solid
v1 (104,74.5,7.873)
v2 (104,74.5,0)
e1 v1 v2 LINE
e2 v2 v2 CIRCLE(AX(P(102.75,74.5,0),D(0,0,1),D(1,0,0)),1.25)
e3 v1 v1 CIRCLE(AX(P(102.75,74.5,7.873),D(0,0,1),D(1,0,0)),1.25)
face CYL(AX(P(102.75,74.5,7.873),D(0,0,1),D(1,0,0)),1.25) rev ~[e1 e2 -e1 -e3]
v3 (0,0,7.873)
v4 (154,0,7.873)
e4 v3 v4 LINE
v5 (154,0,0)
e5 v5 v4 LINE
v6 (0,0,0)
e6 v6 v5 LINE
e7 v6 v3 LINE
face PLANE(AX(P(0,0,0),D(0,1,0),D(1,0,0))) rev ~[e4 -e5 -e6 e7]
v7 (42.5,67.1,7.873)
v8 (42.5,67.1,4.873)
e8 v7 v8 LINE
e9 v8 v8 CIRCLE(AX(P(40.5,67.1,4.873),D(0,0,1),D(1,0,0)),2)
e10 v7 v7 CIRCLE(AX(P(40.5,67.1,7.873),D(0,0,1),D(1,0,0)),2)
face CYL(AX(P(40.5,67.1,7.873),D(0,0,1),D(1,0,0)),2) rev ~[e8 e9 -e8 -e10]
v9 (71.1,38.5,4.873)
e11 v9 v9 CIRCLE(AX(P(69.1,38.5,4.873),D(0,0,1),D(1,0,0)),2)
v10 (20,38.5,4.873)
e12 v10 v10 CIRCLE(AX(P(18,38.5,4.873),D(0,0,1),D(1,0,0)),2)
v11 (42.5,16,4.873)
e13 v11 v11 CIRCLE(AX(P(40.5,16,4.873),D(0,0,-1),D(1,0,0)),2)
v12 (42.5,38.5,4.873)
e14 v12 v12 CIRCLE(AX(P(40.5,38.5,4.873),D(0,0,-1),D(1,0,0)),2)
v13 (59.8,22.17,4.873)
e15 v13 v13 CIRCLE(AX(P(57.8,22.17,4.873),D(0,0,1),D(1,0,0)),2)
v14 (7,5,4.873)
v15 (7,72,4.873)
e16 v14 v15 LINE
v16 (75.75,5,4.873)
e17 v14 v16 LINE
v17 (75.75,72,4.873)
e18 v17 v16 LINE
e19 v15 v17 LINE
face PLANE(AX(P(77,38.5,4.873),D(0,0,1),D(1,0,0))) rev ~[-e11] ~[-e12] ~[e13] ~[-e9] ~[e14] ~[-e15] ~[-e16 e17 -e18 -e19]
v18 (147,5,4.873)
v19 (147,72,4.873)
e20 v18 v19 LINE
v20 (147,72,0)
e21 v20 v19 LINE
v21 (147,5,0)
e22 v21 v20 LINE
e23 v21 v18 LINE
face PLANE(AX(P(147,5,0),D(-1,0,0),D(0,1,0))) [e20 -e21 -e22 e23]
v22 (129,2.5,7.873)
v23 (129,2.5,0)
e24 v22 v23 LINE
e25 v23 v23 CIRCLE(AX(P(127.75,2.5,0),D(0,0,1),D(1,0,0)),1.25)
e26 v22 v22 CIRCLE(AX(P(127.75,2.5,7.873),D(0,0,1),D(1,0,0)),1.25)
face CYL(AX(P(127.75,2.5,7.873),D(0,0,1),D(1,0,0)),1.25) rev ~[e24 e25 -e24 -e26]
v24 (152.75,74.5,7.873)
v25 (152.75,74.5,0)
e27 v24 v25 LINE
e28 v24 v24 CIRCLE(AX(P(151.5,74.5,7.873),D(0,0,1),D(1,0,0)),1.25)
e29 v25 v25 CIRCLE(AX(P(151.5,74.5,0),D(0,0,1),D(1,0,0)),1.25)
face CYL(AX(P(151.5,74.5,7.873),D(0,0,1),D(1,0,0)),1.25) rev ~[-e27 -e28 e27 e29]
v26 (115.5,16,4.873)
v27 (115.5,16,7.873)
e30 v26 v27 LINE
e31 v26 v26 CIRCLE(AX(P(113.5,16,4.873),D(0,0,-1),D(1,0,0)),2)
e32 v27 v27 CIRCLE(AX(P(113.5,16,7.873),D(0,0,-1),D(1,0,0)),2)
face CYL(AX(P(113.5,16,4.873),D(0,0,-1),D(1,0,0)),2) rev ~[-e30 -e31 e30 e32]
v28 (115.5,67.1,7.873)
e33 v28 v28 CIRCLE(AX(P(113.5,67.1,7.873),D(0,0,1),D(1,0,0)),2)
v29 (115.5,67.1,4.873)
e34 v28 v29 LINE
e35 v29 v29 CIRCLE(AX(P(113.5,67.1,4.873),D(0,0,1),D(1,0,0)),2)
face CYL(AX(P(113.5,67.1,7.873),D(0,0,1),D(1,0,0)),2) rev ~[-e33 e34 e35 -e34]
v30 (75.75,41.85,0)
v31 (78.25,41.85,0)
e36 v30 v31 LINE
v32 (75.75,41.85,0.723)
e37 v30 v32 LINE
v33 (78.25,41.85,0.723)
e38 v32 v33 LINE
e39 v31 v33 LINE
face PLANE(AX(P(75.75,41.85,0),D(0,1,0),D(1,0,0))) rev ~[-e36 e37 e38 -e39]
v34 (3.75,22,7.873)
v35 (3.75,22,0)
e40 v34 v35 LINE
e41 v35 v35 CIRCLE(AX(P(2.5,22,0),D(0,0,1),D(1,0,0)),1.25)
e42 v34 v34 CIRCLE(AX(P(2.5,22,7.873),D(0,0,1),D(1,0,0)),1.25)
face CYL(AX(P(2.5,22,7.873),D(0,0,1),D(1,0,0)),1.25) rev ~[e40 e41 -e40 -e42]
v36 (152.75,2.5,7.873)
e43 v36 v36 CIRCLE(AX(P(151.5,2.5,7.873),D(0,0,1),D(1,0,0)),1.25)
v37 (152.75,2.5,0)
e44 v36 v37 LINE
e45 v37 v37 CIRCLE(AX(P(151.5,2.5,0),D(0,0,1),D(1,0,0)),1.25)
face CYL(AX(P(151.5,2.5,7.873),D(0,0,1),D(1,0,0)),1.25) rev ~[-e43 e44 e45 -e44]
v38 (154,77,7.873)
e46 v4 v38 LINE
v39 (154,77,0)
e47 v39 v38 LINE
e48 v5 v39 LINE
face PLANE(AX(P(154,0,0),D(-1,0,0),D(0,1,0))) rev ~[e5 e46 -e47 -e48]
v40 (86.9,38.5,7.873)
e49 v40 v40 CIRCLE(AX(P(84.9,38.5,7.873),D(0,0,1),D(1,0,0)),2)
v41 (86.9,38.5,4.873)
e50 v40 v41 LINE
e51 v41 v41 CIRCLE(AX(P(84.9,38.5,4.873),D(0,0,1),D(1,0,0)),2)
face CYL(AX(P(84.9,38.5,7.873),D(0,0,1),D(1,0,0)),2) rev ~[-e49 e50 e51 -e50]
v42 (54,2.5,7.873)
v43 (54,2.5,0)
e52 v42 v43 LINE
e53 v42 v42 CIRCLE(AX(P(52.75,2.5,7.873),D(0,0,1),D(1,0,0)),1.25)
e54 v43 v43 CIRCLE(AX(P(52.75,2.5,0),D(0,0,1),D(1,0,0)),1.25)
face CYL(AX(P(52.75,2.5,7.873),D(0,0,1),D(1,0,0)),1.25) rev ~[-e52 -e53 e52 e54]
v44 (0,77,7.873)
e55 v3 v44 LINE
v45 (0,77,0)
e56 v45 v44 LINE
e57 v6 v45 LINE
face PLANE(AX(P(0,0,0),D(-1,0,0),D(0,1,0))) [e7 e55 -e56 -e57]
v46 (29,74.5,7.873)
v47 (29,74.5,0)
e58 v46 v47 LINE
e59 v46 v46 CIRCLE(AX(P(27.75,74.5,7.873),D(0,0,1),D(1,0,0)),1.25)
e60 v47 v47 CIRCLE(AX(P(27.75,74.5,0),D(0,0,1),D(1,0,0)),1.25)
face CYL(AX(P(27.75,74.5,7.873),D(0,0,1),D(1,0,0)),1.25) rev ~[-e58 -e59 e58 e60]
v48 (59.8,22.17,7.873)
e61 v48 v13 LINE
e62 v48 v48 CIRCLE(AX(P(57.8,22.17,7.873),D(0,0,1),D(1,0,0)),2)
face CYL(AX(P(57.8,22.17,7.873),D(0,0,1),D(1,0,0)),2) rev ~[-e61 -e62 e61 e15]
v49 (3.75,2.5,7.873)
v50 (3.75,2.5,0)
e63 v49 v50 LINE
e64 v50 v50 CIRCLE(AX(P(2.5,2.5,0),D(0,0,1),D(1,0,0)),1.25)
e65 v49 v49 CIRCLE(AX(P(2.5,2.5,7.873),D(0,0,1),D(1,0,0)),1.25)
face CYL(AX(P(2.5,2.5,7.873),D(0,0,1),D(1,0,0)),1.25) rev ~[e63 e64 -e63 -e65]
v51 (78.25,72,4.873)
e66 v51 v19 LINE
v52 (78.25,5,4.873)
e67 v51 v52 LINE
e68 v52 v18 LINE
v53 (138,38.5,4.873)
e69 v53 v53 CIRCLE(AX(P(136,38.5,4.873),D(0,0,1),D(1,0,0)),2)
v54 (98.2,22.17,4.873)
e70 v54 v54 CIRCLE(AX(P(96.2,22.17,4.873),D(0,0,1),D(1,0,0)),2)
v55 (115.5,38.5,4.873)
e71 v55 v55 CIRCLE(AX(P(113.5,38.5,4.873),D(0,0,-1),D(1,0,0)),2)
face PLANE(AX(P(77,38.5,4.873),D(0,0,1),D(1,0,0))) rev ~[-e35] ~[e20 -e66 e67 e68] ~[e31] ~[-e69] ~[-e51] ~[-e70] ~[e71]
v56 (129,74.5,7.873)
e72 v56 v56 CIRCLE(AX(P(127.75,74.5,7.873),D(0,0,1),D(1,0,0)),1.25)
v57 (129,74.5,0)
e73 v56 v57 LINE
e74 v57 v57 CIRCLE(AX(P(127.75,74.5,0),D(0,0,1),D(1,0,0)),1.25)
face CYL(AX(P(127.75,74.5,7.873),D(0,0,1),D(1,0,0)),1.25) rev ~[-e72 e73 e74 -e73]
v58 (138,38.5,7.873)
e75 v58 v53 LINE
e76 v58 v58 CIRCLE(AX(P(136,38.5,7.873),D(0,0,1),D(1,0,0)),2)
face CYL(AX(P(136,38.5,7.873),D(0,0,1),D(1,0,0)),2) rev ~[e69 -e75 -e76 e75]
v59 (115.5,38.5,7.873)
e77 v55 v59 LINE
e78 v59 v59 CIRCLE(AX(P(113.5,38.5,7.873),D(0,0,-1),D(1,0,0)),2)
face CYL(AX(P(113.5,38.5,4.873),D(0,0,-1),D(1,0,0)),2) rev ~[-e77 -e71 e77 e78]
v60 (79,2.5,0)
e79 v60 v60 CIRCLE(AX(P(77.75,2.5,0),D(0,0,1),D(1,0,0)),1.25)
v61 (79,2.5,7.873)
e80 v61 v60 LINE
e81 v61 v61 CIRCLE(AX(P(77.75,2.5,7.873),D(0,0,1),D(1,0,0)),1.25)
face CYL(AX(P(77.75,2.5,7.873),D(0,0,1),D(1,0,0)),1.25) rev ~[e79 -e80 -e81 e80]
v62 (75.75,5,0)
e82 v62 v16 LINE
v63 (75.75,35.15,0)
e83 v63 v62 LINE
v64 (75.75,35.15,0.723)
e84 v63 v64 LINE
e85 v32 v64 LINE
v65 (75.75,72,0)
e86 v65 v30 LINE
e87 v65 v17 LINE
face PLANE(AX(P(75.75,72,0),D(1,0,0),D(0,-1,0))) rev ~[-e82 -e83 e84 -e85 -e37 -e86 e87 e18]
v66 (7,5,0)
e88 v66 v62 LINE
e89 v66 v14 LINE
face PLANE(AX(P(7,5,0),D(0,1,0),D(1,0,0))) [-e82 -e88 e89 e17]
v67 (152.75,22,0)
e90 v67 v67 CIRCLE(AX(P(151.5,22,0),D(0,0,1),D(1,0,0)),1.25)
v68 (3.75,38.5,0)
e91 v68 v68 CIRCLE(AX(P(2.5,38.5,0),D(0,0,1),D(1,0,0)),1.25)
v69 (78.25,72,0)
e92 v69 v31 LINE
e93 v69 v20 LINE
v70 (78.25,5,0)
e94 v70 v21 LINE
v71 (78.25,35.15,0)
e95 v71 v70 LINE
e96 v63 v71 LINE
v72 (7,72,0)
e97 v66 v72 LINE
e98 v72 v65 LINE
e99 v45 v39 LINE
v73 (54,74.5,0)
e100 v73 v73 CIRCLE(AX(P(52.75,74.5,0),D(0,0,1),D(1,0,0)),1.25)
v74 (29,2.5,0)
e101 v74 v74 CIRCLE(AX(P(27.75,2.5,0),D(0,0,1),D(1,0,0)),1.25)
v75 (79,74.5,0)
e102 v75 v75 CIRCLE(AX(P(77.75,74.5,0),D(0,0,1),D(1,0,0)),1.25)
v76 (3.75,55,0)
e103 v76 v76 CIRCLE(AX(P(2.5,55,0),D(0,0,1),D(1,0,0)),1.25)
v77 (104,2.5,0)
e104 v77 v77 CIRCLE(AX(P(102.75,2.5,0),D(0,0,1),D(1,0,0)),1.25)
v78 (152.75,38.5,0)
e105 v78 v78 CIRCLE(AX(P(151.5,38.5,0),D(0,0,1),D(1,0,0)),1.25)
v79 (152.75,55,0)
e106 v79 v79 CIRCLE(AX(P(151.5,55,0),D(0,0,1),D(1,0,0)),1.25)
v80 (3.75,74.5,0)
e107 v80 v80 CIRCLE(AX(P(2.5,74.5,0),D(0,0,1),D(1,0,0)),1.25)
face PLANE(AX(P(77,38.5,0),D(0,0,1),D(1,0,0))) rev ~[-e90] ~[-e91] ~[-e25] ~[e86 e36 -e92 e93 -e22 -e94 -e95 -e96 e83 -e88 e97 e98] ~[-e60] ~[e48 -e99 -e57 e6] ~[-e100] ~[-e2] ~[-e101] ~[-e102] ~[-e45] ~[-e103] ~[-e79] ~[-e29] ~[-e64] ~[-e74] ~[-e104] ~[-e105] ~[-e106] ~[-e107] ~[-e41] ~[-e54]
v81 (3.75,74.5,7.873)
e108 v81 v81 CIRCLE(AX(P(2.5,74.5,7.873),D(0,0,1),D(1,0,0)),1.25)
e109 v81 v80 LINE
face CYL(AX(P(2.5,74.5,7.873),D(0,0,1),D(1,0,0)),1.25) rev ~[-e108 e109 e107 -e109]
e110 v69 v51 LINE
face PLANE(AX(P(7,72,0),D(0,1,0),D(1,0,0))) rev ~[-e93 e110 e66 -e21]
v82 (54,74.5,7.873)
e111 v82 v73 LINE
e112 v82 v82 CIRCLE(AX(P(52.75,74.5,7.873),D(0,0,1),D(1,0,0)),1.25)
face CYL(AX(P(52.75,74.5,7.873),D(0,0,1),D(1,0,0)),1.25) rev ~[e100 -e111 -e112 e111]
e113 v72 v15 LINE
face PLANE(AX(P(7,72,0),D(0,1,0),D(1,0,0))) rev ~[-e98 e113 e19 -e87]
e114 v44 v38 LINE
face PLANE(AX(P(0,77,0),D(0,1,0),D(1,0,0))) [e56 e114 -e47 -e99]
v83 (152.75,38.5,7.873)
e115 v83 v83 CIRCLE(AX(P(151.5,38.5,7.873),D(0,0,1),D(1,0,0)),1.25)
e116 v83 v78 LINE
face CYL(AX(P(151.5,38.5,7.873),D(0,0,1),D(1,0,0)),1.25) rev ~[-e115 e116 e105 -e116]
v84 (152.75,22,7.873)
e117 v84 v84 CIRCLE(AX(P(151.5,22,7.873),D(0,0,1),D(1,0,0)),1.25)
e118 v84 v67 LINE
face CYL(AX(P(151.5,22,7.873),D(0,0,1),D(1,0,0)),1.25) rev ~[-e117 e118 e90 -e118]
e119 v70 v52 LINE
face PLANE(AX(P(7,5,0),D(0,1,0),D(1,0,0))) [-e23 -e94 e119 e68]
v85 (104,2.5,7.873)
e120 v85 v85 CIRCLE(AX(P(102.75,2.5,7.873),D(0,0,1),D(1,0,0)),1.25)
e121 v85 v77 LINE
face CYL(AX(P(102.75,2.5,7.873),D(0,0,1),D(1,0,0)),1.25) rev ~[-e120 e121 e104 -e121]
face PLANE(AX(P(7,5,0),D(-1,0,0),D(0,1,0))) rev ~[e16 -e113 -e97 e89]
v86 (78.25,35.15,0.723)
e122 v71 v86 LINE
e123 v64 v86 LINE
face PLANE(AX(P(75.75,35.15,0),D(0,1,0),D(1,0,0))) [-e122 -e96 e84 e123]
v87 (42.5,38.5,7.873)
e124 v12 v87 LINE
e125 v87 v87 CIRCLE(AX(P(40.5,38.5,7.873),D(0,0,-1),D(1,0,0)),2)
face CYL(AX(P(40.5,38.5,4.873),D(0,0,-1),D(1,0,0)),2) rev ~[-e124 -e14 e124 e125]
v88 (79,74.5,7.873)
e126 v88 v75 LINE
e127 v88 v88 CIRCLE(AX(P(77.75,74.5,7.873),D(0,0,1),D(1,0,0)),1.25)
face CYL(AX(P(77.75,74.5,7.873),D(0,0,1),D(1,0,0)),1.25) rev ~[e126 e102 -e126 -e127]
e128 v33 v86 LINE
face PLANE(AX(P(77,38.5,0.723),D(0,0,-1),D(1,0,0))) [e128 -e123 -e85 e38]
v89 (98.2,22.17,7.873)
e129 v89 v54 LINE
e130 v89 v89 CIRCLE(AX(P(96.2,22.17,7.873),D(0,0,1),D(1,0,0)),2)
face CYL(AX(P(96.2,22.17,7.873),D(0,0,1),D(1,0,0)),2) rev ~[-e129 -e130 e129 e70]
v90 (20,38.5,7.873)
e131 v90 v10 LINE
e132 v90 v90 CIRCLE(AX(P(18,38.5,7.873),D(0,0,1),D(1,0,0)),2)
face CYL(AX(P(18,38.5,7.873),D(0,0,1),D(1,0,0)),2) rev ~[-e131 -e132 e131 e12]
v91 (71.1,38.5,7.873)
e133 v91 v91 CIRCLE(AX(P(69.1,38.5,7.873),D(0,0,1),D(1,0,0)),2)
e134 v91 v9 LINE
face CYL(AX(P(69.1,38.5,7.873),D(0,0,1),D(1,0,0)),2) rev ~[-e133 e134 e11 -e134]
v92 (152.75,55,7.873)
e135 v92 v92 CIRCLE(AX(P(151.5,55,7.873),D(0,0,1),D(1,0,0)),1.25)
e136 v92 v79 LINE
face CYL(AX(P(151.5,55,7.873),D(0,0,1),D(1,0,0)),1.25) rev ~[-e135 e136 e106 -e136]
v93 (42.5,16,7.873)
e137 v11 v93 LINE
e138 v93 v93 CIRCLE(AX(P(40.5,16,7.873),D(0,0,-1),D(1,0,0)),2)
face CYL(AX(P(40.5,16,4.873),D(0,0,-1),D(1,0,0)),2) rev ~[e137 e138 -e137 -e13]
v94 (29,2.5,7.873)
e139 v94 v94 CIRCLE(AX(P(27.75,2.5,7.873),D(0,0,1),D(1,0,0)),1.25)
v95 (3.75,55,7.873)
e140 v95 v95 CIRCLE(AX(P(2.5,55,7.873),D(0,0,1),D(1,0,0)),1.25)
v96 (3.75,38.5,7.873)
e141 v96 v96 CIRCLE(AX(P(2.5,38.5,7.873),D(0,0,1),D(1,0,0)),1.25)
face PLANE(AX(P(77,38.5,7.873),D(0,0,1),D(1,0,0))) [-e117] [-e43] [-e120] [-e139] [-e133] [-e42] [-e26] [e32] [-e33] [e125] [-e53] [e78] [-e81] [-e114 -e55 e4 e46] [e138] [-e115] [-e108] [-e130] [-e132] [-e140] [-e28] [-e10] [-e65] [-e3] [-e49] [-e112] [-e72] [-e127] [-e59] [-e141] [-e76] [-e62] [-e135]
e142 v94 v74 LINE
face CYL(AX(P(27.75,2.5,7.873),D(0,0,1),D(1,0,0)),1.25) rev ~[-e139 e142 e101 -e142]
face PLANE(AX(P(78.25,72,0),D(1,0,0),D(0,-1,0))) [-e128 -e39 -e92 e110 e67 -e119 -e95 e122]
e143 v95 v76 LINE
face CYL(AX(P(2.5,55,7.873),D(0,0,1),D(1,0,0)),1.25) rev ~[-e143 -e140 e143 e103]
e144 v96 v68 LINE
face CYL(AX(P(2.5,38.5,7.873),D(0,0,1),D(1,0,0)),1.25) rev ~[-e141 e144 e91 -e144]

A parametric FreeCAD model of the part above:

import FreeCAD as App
import Part
import Sketcher
from FreeCAD import Vector
Q = App.Units.Quantity


def add_polygon(sketch, points):
    """Adds a closed chain of lines whose ends are joined by coincident constraints."""
    first, n = sketch.GeometryCount, len(points)
    for a, b in zip(points, points[1:] + points[:1]):
        sketch.addGeometry(Part.LineSegment(App.Vector(*a, 0), App.Vector(*b, 0)), False)
    for i in range(n):
        sketch.addConstraint(Sketcher.Constraint("Coincident", first + i, 2, first + (i + 1) % n, 1))

doc = App.newDocument("Part")
body = doc.addObject("PartDesign::Body", "Body")

# Sketch on XY plane
sketch1 = body.newObject("Sketcher::SketchObject", "Sketch")
sketch1.AttachmentSupport = (doc.getObject("XY_Plane"), [""])
sketch1.MapMode = "FlatFace"
add_polygon(sketch1, [(0, 77), (0, 0), (154, 0), (154, 77)])  # lines 0-3
sketch1.addConstraint(Sketcher.Constraint("Vertical", 0))
sketch1.addConstraint(Sketcher.Constraint("Horizontal", 1))
sketch1.addConstraint(Sketcher.Constraint("Vertical", 2))
sketch1.addConstraint(Sketcher.Constraint("Horizontal", 3))
sketch1.addConstraint(Sketcher.Constraint("Coincident", 0, 2, -1, 1))
sketch1.addConstraint(Sketcher.Constraint("DistanceX", 1, 1, 1, 2, Q("154 mm")))
sketch1.addConstraint(Sketcher.Constraint("DistanceY", 0, 2, 0, 1, Q("77 mm")))
pad1 = body.newObject("PartDesign::Pad", "Pad")
pad1.Profile = sketch1
pad1.Length = 7.873

# Sketch on XY plane
sketch2 = body.newObject("Sketcher::SketchObject", "Sketch001")
sketch2.AttachmentSupport = (doc.getObject("XY_Plane"), [""])
sketch2.MapMode = "FlatFace"
add_polygon(sketch2, [(7, 72), (7, 5), (147, 5), (147, 72)])  # lines 0-3
sketch2.addConstraint(Sketcher.Constraint("Vertical", 0))
sketch2.addConstraint(Sketcher.Constraint("Horizontal", 1))
sketch2.addConstraint(Sketcher.Constraint("Vertical", 2))
sketch2.addConstraint(Sketcher.Constraint("Horizontal", 3))
sketch2.addConstraint(Sketcher.Constraint("DistanceX", 1, 1, 1, 2, Q("140 mm")))
sketch2.addConstraint(Sketcher.Constraint("DistanceY", 0, 2, 0, 1, Q("67 mm")))
sketch2.addConstraint(Sketcher.Constraint("DistanceX", -1, 1, 0, 2, Q("7 mm")))
sketch2.addConstraint(Sketcher.Constraint("DistanceY", -1, 1, 0, 2, Q("5 mm")))
pocket1 = body.newObject("PartDesign::Pocket", "Pocket")
pocket1.Profile = sketch2
pocket1.Length = 4.873
pocket1.Reversed = True

# Sketch on XY plane
sketch3 = body.newObject("Sketcher::SketchObject", "Sketch002")
sketch3.AttachmentSupport = (doc.getObject("XY_Plane"), [""])
sketch3.MapMode = "FlatFace"
sketch3.AttachmentOffset = App.Placement(Vector(0, 0, 7.873), App.Rotation())
sketch3.addGeometry(Part.Circle(Vector(2.5, 2.5, 0), Vector(0, 0, 1), 1.25), False)
sketch3.addConstraint(Sketcher.Constraint("Diameter", 0, Q("2.5 mm")))
sketch3.addConstraint(Sketcher.Constraint("DistanceX", -1, 1, 0, 3, Q("2.5 mm")))
sketch3.addConstraint(Sketcher.Constraint("DistanceY", -1, 1, 0, 3, Q("2.5 mm")))
pocket2 = body.newObject("PartDesign::Pocket", "Pocket001")
pocket2.Profile = sketch3
pocket2.Length = 7.873

# Sketch on XY plane
sketch4 = body.newObject("Sketcher::SketchObject", "Sketch003")
sketch4.AttachmentSupport = (doc.getObject("XY_Plane"), [""])
sketch4.MapMode = "FlatFace"
sketch4.AttachmentOffset = App.Placement(Vector(0, 0, 7.873), App.Rotation())
sketch4.addGeometry(Part.Circle(Vector(27.75, 2.5, 0), Vector(0, 0, 1), 1.25), False)
sketch4.addConstraint(Sketcher.Constraint("Diameter", 0, Q("2.5 mm")))
sketch4.addConstraint(Sketcher.Constraint("DistanceY", -1, 1, 0, 3, Q("2.5 mm")))
sketch4.addConstraint(Sketcher.Constraint("DistanceX", -1, 1, 0, 3, Q("27.75 mm")))
pocket3 = body.newObject("PartDesign::Pocket", "Pocket002")
pocket3.Profile = sketch4
pocket3.Length = 7.873

# Sketch on XY plane
sketch5 = body.newObject("Sketcher::SketchObject", "Sketch004")
sketch5.AttachmentSupport = (doc.getObject("XY_Plane"), [""])
sketch5.MapMode = "FlatFace"
sketch5.AttachmentOffset = App.Placement(Vector(0, 0, 7.873), App.Rotation())
sketch5.addGeometry(Part.Circle(Vector(52.75, 2.5, 0), Vector(0, 0, 1), 1.25), False)
sketch5.addConstraint(Sketcher.Constraint("Diameter", 0, Q("2.5 mm")))
sketch5.addConstraint(Sketcher.Constraint("DistanceY", -1, 1, 0, 3, Q("2.5 mm")))
sketch5.addConstraint(Sketcher.Constraint("DistanceX", -1, 1, 0, 3, Q("52.75 mm")))
pocket4 = body.newObject("PartDesign::Pocket", "Pocket003")
pocket4.Profile = sketch5
pocket4.Length = 7.873

# Sketch on XY plane
sketch6 = body.newObject("Sketcher::SketchObject", "Sketch005")
sketch6.AttachmentSupport = (doc.getObject("XY_Plane"), [""])
sketch6.MapMode = "FlatFace"
sketch6.AttachmentOffset = App.Placement(Vector(0, 0, 7.873), App.Rotation())
sketch6.addGeometry(Part.Circle(Vector(77.75, 2.5, 0), Vector(0, 0, 1), 1.25), False)
sketch6.addConstraint(Sketcher.Constraint("Diameter", 0, Q("2.5 mm")))
sketch6.addConstraint(Sketcher.Constraint("DistanceY", -1, 1, 0, 3, Q("2.5 mm")))
sketch6.addConstraint(Sketcher.Constraint("DistanceX", -1, 1, 0, 3, Q("77.75 mm")))
pocket5 = body.newObject("PartDesign::Pocket", "Pocket004")
pocket5.Profile = sketch6
pocket5.Length = 7.873

# Sketch on XY plane
sketch7 = body.newObject("Sketcher::SketchObject", "Sketch006")
sketch7.AttachmentSupport = (doc.getObject("XY_Plane"), [""])
sketch7.MapMode = "FlatFace"
sketch7.AttachmentOffset = App.Placement(Vector(0, 0, 7.873), App.Rotation())
sketch7.addGeometry(Part.Circle(Vector(102.75, 2.5, 0), Vector(0, 0, 1), 1.25), False)
sketch7.addConstraint(Sketcher.Constraint("Diameter", 0, Q("2.5 mm")))
sketch7.addConstraint(Sketcher.Constraint("DistanceY", -1, 1, 0, 3, Q("2.5 mm")))
sketch7.addConstraint(Sketcher.Constraint("DistanceX", -1, 1, 0, 3, Q("102.75 mm")))
pocket6 = body.newObject("PartDesign::Pocket", "Pocket005")
pocket6.Profile = sketch7
pocket6.Length = 7.873

# Sketch on XY plane
sketch8 = body.newObject("Sketcher::SketchObject", "Sketch007")
sketch8.AttachmentSupport = (doc.getObject("XY_Plane"), [""])
sketch8.MapMode = "FlatFace"
sketch8.AttachmentOffset = App.Placement(Vector(0, 0, 7.873), App.Rotation())
sketch8.addGeometry(Part.Circle(Vector(127.75, 2.5, 0), Vector(0, 0, 1), 1.25), False)
sketch8.addConstraint(Sketcher.Constraint("Diameter", 0, Q("2.5 mm")))
sketch8.addConstraint(Sketcher.Constraint("DistanceY", -1, 1, 0, 3, Q("2.5 mm")))
sketch8.addConstraint(Sketcher.Constraint("DistanceX", -1, 1, 0, 3, Q("127.75 mm")))
pocket7 = body.newObject("PartDesign::Pocket", "Pocket006")
pocket7.Profile = sketch8
pocket7.Length = 7.873

# Sketch on XY plane
sketch9 = body.newObject("Sketcher::SketchObject", "Sketch008")
sketch9.AttachmentSupport = (doc.getObject("XY_Plane"), [""])
sketch9.MapMode = "FlatFace"
sketch9.AttachmentOffset = App.Placement(Vector(0, 0, 7.873), App.Rotation())
sketch9.addGeometry(Part.Circle(Vector(151.5, 2.5, 0), Vector(0, 0, 1), 1.25), False)
sketch9.addConstraint(Sketcher.Constraint("Diameter", 0, Q("2.5 mm")))
sketch9.addConstraint(Sketcher.Constraint("DistanceX", -1, 1, 0, 3, Q("151.5 mm")))
sketch9.addConstraint(Sketcher.Constraint("DistanceY", -1, 1, 0, 3, Q("2.5 mm")))
pocket8 = body.newObject("PartDesign::Pocket", "Pocket007")
pocket8.Profile = sketch9
pocket8.Length = 7.873

# Sketch on XY plane
sketch10 = body.newObject("Sketcher::SketchObject", "Sketch009")
sketch10.AttachmentSupport = (doc.getObject("XY_Plane"), [""])
sketch10.MapMode = "FlatFace"
sketch10.AttachmentOffset = App.Placement(Vector(0, 0, 7.873), App.Rotation())
sketch10.addGeometry(Part.Circle(Vector(2.5, 22, 0), Vector(0, 0, 1), 1.25), False)
sketch10.addConstraint(Sketcher.Constraint("Diameter", 0, Q("2.5 mm")))
sketch10.addConstraint(Sketcher.Constraint("DistanceY", -1, 1, 0, 3, Q("22 mm")))
sketch10.addConstraint(Sketcher.Constraint("DistanceX", -1, 1, 0, 3, Q("2.5 mm")))
pocket9 = body.newObject("PartDesign::Pocket", "Pocket008")
pocket9.Profile = sketch10
pocket9.Length = 7.873

# Sketch on XY plane
sketch11 = body.newObject("Sketcher::SketchObject", "Sketch010")
sketch11.AttachmentSupport = (doc.getObject("XY_Plane"), [""])
sketch11.MapMode = "FlatFace"
sketch11.AttachmentOffset = App.Placement(Vector(0, 0, 7.873), App.Rotation())
sketch11.addGeometry(Part.Circle(Vector(151.5, 22, 0), Vector(0, 0, 1), 1.25), False)
sketch11.addConstraint(Sketcher.Constraint("Diameter", 0, Q("2.5 mm")))
sketch11.addConstraint(Sketcher.Constraint("DistanceY", -1, 1, 0, 3, Q("22 mm")))
sketch11.addConstraint(Sketcher.Constraint("DistanceX", -1, 1, 0, 3, Q("151.5 mm")))
pocket10 = body.newObject("PartDesign::Pocket", "Pocket009")
pocket10.Profile = sketch11
pocket10.Length = 7.873

# Sketch on XY plane
sketch12 = body.newObject("Sketcher::SketchObject", "Sketch011")
sketch12.AttachmentSupport = (doc.getObject("XY_Plane"), [""])
sketch12.MapMode = "FlatFace"
sketch12.AttachmentOffset = App.Placement(Vector(0, 0, 7.873), App.Rotation())
sketch12.addGeometry(Part.Circle(Vector(151.5, 38.5, 0), Vector(0, 0, 1), 1.25), False)
sketch12.addConstraint(Sketcher.Constraint("Diameter", 0, Q("2.5 mm")))
sketch12.addConstraint(Sketcher.Constraint("DistanceX", -1, 1, 0, 3, Q("151.5 mm")))
sketch12.addConstraint(Sketcher.Constraint("DistanceY", -1, 1, 0, 3, Q("38.5 mm")))
pocket11 = body.newObject("PartDesign::Pocket", "Pocket010")
pocket11.Profile = sketch12
pocket11.Length = 7.873

# Sketch on XY plane
sketch13 = body.newObject("Sketcher::SketchObject", "Sketch012")
sketch13.AttachmentSupport = (doc.getObject("XY_Plane"), [""])
sketch13.MapMode = "FlatFace"
sketch13.AttachmentOffset = App.Placement(Vector(0, 0, 7.873), App.Rotation())
sketch13.addGeometry(Part.Circle(Vector(2.5, 38.5, 0), Vector(0, 0, 1), 1.25), False)
sketch13.addConstraint(Sketcher.Constraint("Diameter", 0, Q("2.5 mm")))
sketch13.addConstraint(Sketcher.Constraint("DistanceX", -1, 1, 0, 3, Q("2.5 mm")))
sketch13.addConstraint(Sketcher.Constraint("DistanceY", -1, 1, 0, 3, Q("38.5 mm")))
pocket12 = body.newObject("PartDesign::Pocket", "Pocket011")
pocket12.Profile = sketch13
pocket12.Length = 7.873

# Sketch on XY plane
sketch14 = body.newObject("Sketcher::SketchObject", "Sketch013")
sketch14.AttachmentSupport = (doc.getObject("XY_Plane"), [""])
sketch14.MapMode = "FlatFace"
sketch14.AttachmentOffset = App.Placement(Vector(0, 0, 7.873), App.Rotation())
sketch14.addGeometry(Part.Circle(Vector(2.5, 55, 0), Vector(0, 0, 1), 1.25), False)
sketch14.addConstraint(Sketcher.Constraint("Diameter", 0, Q("2.5 mm")))
sketch14.addConstraint(Sketcher.Constraint("DistanceY", -1, 1, 0, 3, Q("55 mm")))
sketch14.addConstraint(Sketcher.Constraint("DistanceX", -1, 1, 0, 3, Q("2.5 mm")))
pocket13 = body.newObject("PartDesign::Pocket", "Pocket012")
pocket13.Profile = sketch14
pocket13.Length = 7.873

# Sketch on XY plane
sketch15 = body.newObject("Sketcher::SketchObject", "Sketch014")
sketch15.AttachmentSupport = (doc.getObject("XY_Plane"), [""])
sketch15.MapMode = "FlatFace"
sketch15.AttachmentOffset = App.Placement(Vector(0, 0, 7.873), App.Rotation())
sketch15.addGeometry(Part.Circle(Vector(151.5, 55, 0), Vector(0, 0, 1), 1.25), False)
sketch15.addConstraint(Sketcher.Constraint("Diameter", 0, Q("2.5 mm")))
sketch15.addConstraint(Sketcher.Constraint("DistanceY", -1, 1, 0, 3, Q("55 mm")))
sketch15.addConstraint(Sketcher.Constraint("DistanceX", -1, 1, 0, 3, Q("151.5 mm")))
pocket14 = body.newObject("PartDesign::Pocket", "Pocket013")
pocket14.Profile = sketch15
pocket14.Length = 7.873

# Sketch on XY plane
sketch16 = body.newObject("Sketcher::SketchObject", "Sketch015")
sketch16.AttachmentSupport = (doc.getObject("XY_Plane"), [""])
sketch16.MapMode = "FlatFace"
sketch16.AttachmentOffset = App.Placement(Vector(0, 0, 7.873), App.Rotation())
sketch16.addGeometry(Part.Circle(Vector(2.5, 74.5, 0), Vector(0, 0, 1), 1.25), False)
sketch16.addConstraint(Sketcher.Constraint("Diameter", 0, Q("2.5 mm")))
sketch16.addConstraint(Sketcher.Constraint("DistanceX", -1, 1, 0, 3, Q("2.5 mm")))
sketch16.addConstraint(Sketcher.Constraint("DistanceY", -1, 1, 0, 3, Q("74.5 mm")))
pocket15 = body.newObject("PartDesign::Pocket", "Pocket014")
pocket15.Profile = sketch16
pocket15.Length = 7.873

# Sketch on XY plane
sketch17 = body.newObject("Sketcher::SketchObject", "Sketch016")
sketch17.AttachmentSupport = (doc.getObject("XY_Plane"), [""])
sketch17.MapMode = "FlatFace"
sketch17.AttachmentOffset = App.Placement(Vector(0, 0, 7.873), App.Rotation())
sketch17.addGeometry(Part.Circle(Vector(151.5, 74.5, 0), Vector(0, 0, 1), 1.25), False)
sketch17.addConstraint(Sketcher.Constraint("Diameter", 0, Q("2.5 mm")))
sketch17.addConstraint(Sketcher.Constraint("DistanceX", -1, 1, 0, 3, Q("151.5 mm")))
sketch17.addConstraint(Sketcher.Constraint("DistanceY", -1, 1, 0, 3, Q("74.5 mm")))
pocket16 = body.newObject("PartDesign::Pocket", "Pocket015")
pocket16.Profile = sketch17
pocket16.Length = 7.873

# Sketch on XY plane
sketch18 = body.newObject("Sketcher::SketchObject", "Sketch017")
sketch18.AttachmentSupport = (doc.getObject("XY_Plane"), [""])
sketch18.MapMode = "FlatFace"
sketch18.AttachmentOffset = App.Placement(Vector(0, 0, 7.873), App.Rotation())
sketch18.addGeometry(Part.Circle(Vector(27.75, 74.5, 0), Vector(0, 0, 1), 1.25), False)
sketch18.addConstraint(Sketcher.Constraint("Diameter", 0, Q("2.5 mm")))
sketch18.addConstraint(Sketcher.Constraint("DistanceY", -1, 1, 0, 3, Q("74.5 mm")))
sketch18.addConstraint(Sketcher.Constraint("DistanceX", -1, 1, 0, 3, Q("27.75 mm")))
pocket17 = body.newObject("PartDesign::Pocket", "Pocket016")
pocket17.Profile = sketch18
pocket17.Length = 7.873

# Sketch on XY plane
sketch19 = body.newObject("Sketcher::SketchObject", "Sketch018")
sketch19.AttachmentSupport = (doc.getObject("XY_Plane"), [""])
sketch19.MapMode = "FlatFace"
sketch19.AttachmentOffset = App.Placement(Vector(0, 0, 7.873), App.Rotation())
sketch19.addGeometry(Part.Circle(Vector(127.75, 74.5, 0), Vector(0, 0, 1), 1.25), False)
sketch19.addConstraint(Sketcher.Constraint("Diameter", 0, Q("2.5 mm")))
sketch19.addConstraint(Sketcher.Constraint("DistanceY", -1, 1, 0, 3, Q("74.5 mm")))
sketch19.addConstraint(Sketcher.Constraint("DistanceX", -1, 1, 0, 3, Q("127.75 mm")))
pocket18 = body.newObject("PartDesign::Pocket", "Pocket017")
pocket18.Profile = sketch19
pocket18.Length = 7.873

# Sketch on XY plane
sketch20 = body.newObject("Sketcher::SketchObject", "Sketch019")
sketch20.AttachmentSupport = (doc.getObject("XY_Plane"), [""])
sketch20.MapMode = "FlatFace"
sketch20.AttachmentOffset = App.Placement(Vector(0, 0, 7.873), App.Rotation())
sketch20.addGeometry(Part.Circle(Vector(102.75, 74.5, 0), Vector(0, 0, 1), 1.25), False)
sketch20.addConstraint(Sketcher.Constraint("Diameter", 0, Q("2.5 mm")))
sketch20.addConstraint(Sketcher.Constraint("DistanceY", -1, 1, 0, 3, Q("74.5 mm")))
sketch20.addConstraint(Sketcher.Constraint("DistanceX", -1, 1, 0, 3, Q("102.75 mm")))
pocket19 = body.newObject("PartDesign::Pocket", "Pocket018")
pocket19.Profile = sketch20
pocket19.Length = 7.873

# Sketch on XY plane
sketch21 = body.newObject("Sketcher::SketchObject", "Sketch020")
sketch21.AttachmentSupport = (doc.getObject("XY_Plane"), [""])
sketch21.MapMode = "FlatFace"
sketch21.AttachmentOffset = App.Placement(Vector(0, 0, 7.873), App.Rotation())
sketch21.addGeometry(Part.Circle(Vector(52.75, 74.5, 0), Vector(0, 0, 1), 1.25), False)
sketch21.addConstraint(Sketcher.Constraint("Diameter", 0, Q("2.5 mm")))
sketch21.addConstraint(Sketcher.Constraint("DistanceY", -1, 1, 0, 3, Q("74.5 mm")))
sketch21.addConstraint(Sketcher.Constraint("DistanceX", -1, 1, 0, 3, Q("52.75 mm")))
pocket20 = body.newObject("PartDesign::Pocket", "Pocket019")
pocket20.Profile = sketch21
pocket20.Length = 7.873

# Sketch on XY plane
sketch22 = body.newObject("Sketcher::SketchObject", "Sketch021")
sketch22.AttachmentSupport = (doc.getObject("XY_Plane"), [""])
sketch22.MapMode = "FlatFace"
sketch22.AttachmentOffset = App.Placement(Vector(0, 0, 7.873), App.Rotation())
sketch22.addGeometry(Part.Circle(Vector(77.75, 74.5, 0), Vector(0, 0, 1), 1.25), False)
sketch22.addConstraint(Sketcher.Constraint("Diameter", 0, Q("2.5 mm")))
sketch22.addConstraint(Sketcher.Constraint("DistanceY", -1, 1, 0, 3, Q("74.5 mm")))
sketch22.addConstraint(Sketcher.Constraint("DistanceX", -1, 1, 0, 3, Q("77.75 mm")))
pocket21 = body.newObject("PartDesign::Pocket", "Pocket020")
pocket21.Profile = sketch22
pocket21.Length = 7.873

# Sketch on XY plane
sketch23 = body.newObject("Sketcher::SketchObject", "Sketch022")
sketch23.AttachmentSupport = (doc.getObject("XY_Plane"), [""])
sketch23.MapMode = "FlatFace"
sketch23.AttachmentOffset = App.Placement(Vector(0, 0, 7.873), App.Rotation())
sketch23.addGeometry(Part.Circle(Vector(40.5, 67.1, 0), Vector(0, 0, 1), 2), False)
sketch23.addConstraint(Sketcher.Constraint("Diameter", 0, Q("4 mm")))
sketch23.addConstraint(Sketcher.Constraint("DistanceX", -1, 1, 0, 3, Q("40.5 mm")))
sketch23.addConstraint(Sketcher.Constraint("DistanceY", -1, 1, 0, 3, Q("67.1 mm")))
pocket22 = body.newObject("PartDesign::Pocket", "Pocket021")
pocket22.Profile = sketch23
pocket22.Length = 3

# Sketch on XY plane
sketch24 = body.newObject("Sketcher::SketchObject", "Sketch023")
sketch24.AttachmentSupport = (doc.getObject("XY_Plane"), [""])
sketch24.MapMode = "FlatFace"
sketch24.AttachmentOffset = App.Placement(Vector(0, 0, 7.873), App.Rotation())
sketch24.addGeometry(Part.Circle(Vector(18, 38.5, 0), Vector(0, 0, 1), 2), False)
sketch24.addConstraint(Sketcher.Constraint("Diameter", 0, Q("4 mm")))
sketch24.addConstraint(Sketcher.Constraint("DistanceX", -1, 1, 0, 3, Q("18 mm")))
sketch24.addConstraint(Sketcher.Constraint("DistanceY", -1, 1, 0, 3, Q("38.5 mm")))
pocket23 = body.newObject("PartDesign::Pocket", "Pocket022")
pocket23.Profile = sketch24
pocket23.Length = 3

# Sketch on XY plane
sketch25 = body.newObject("Sketcher::SketchObject", "Sketch024")
sketch25.AttachmentSupport = (doc.getObject("XY_Plane"), [""])
sketch25.MapMode = "FlatFace"
sketch25.AttachmentOffset = App.Placement(Vector(0, 0, 7.873), App.Rotation())
sketch25.addGeometry(Part.Circle(Vector(69.1, 38.5, 0), Vector(0, 0, 1), 2), False)
sketch25.addConstraint(Sketcher.Constraint("Diameter", 0, Q("4 mm")))
sketch25.addConstraint(Sketcher.Constraint("DistanceX", -1, 1, 0, 3, Q("69.1 mm")))
sketch25.addConstraint(Sketcher.Constraint("DistanceY", -1, 1, 0, 3, Q("38.5 mm")))
pocket24 = body.newObject("PartDesign::Pocket", "Pocket023")
pocket24.Profile = sketch25
pocket24.Length = 3

# Sketch on XY plane
sketch26 = body.newObject("Sketcher::SketchObject", "Sketch025")
sketch26.AttachmentSupport = (doc.getObject("XY_Plane"), [""])
sketch26.MapMode = "FlatFace"
sketch26.AttachmentOffset = App.Placement(Vector(0, 0, 7.873), App.Rotation())
sketch26.addGeometry(Part.Circle(Vector(113.5, 67.1, 0), Vector(0, 0, 1), 2), False)
sketch26.addConstraint(Sketcher.Constraint("Diameter", 0, Q("4 mm")))
sketch26.addConstraint(Sketcher.Constraint("DistanceX", -1, 1, 0, 3, Q("113.5 mm")))
sketch26.addConstraint(Sketcher.Constraint("DistanceY", -1, 1, 0, 3, Q("67.1 mm")))
pocket25 = body.newObject("PartDesign::Pocket", "Pocket024")
pocket25.Profile = sketch26
pocket25.Length = 3

# Sketch on XY plane
sketch27 = body.newObject("Sketcher::SketchObject", "Sketch026")
sketch27.AttachmentSupport = (doc.getObject("XY_Plane"), [""])
sketch27.MapMode = "FlatFace"
sketch27.AttachmentOffset = App.Placement(Vector(0, 0, 7.873), App.Rotation())
sketch27.addGeometry(Part.Circle(Vector(84.9, 38.5, 0), Vector(0, 0, 1), 2), False)
sketch27.addConstraint(Sketcher.Constraint("Diameter", 0, Q("4 mm")))
sketch27.addConstraint(Sketcher.Constraint("DistanceX", -1, 1, 0, 3, Q("84.9 mm")))
sketch27.addConstraint(Sketcher.Constraint("DistanceY", -1, 1, 0, 3, Q("38.5 mm")))
pocket26 = body.newObject("PartDesign::Pocket", "Pocket025")
pocket26.Profile = sketch27
pocket26.Length = 3

# Sketch on XY plane
sketch28 = body.newObject("Sketcher::SketchObject", "Sketch027")
sketch28.AttachmentSupport = (doc.getObject("XY_Plane"), [""])
sketch28.MapMode = "FlatFace"
sketch28.AttachmentOffset = App.Placement(Vector(0, 0, 7.873), App.Rotation())
sketch28.addGeometry(Part.Circle(Vector(136, 38.5, 0), Vector(0, 0, 1), 2), False)
sketch28.addConstraint(Sketcher.Constraint("Diameter", 0, Q("4 mm")))
sketch28.addConstraint(Sketcher.Constraint("DistanceX", -1, 1, 0, 3, Q("136 mm")))
sketch28.addConstraint(Sketcher.Constraint("DistanceY", -1, 1, 0, 3, Q("38.5 mm")))
pocket27 = body.newObject("PartDesign::Pocket", "Pocket026")
pocket27.Profile = sketch28
pocket27.Length = 3

# Sketch on XY plane
sketch29 = body.newObject("Sketcher::SketchObject", "Sketch028")
sketch29.AttachmentSupport = (doc.getObject("XY_Plane"), [""])
sketch29.MapMode = "FlatFace"
sketch29.AttachmentOffset = App.Placement(Vector(0, 0, 7.873), App.Rotation())
sketch29.addGeometry(Part.Circle(Vector(57.8, 22.17, 0), Vector(0, 0, 1), 2), False)
sketch29.addConstraint(Sketcher.Constraint("Diameter", 0, Q("4 mm")))
sketch29.addConstraint(Sketcher.Constraint("DistanceX", -1, 1, 0, 3, Q("57.8 mm")))
sketch29.addConstraint(Sketcher.Constraint("DistanceY", -1, 1, 0, 3, Q("22.17 mm")))
pocket28 = body.newObject("PartDesign::Pocket", "Pocket027")
pocket28.Profile = sketch29
pocket28.Length = 3

# Sketch on XY plane
sketch30 = body.newObject("Sketcher::SketchObject", "Sketch029")
sketch30.AttachmentSupport = (doc.getObject("XY_Plane"), [""])
sketch30.MapMode = "FlatFace"
sketch30.AttachmentOffset = App.Placement(Vector(0, 0, 7.873), App.Rotation())
sketch30.addGeometry(Part.Circle(Vector(96.2, 22.17, 0), Vector(0, 0, 1), 2), False)
sketch30.addConstraint(Sketcher.Constraint("Diameter", 0, Q("4 mm")))
sketch30.addConstraint(Sketcher.Constraint("DistanceX", -1, 1, 0, 3, Q("96.2 mm")))
sketch30.addConstraint(Sketcher.Constraint("DistanceY", -1, 1, 0, 3, Q("22.17 mm")))
pocket29 = body.newObject("PartDesign::Pocket", "Pocket028")
pocket29.Profile = sketch30
pocket29.Length = 3

# Sketch on XY plane
sketch31 = body.newObject("Sketcher::SketchObject", "Sketch030")
sketch31.AttachmentSupport = (doc.getObject("XY_Plane"), [""])
sketch31.MapMode = "FlatFace"
sketch31.AttachmentOffset = App.Placement(Vector(0, 0, 4.873), App.Rotation())
sketch31.addGeometry(Part.Circle(Vector(40.5, 16, 0), Vector(0, 0, 1), 2), False)
sketch31.addConstraint(Sketcher.Constraint("Diameter", 0, Q("4 mm")))
sketch31.addConstraint(Sketcher.Constraint("DistanceY", -1, 1, 0, 3, Q("16 mm")))
sketch31.addConstraint(Sketcher.Constraint("DistanceX", -1, 1, 0, 3, Q("40.5 mm")))
pocket30 = body.newObject("PartDesign::Pocket", "Pocket029")
pocket30.Profile = sketch31
pocket30.Length = 3
pocket30.Reversed = True

# Sketch on XY plane
sketch32 = body.newObject("Sketcher::SketchObject", "Sketch031")
sketch32.AttachmentSupport = (doc.getObject("XY_Plane"), [""])
sketch32.MapMode = "FlatFace"
sketch32.AttachmentOffset = App.Placement(Vector(0, 0, 4.873), App.Rotation())
sketch32.addGeometry(Part.Circle(Vector(113.5, 38.5, 0), Vector(0, 0, 1), 2), False)
sketch32.addConstraint(Sketcher.Constraint("Diameter", 0, Q("4 mm")))
sketch32.addConstraint(Sketcher.Constraint("DistanceX", -1, 1, 0, 3, Q("113.5 mm")))
sketch32.addConstraint(Sketcher.Constraint("DistanceY", -1, 1, 0, 3, Q("38.5 mm")))
pocket31 = body.newObject("PartDesign::Pocket", "Pocket030")
pocket31.Profile = sketch32
pocket31.Length = 3
pocket31.Reversed = True

# Sketch on XY plane
sketch33 = body.newObject("Sketcher::SketchObject", "Sketch032")
sketch33.AttachmentSupport = (doc.getObject("XY_Plane"), [""])
sketch33.MapMode = "FlatFace"
sketch33.AttachmentOffset = App.Placement(Vector(0, 0, 4.873), App.Rotation())
sketch33.addGeometry(Part.Circle(Vector(113.5, 16, 0), Vector(0, 0, 1), 2), False)
sketch33.addConstraint(Sketcher.Constraint("Diameter", 0, Q("4 mm")))
sketch33.addConstraint(Sketcher.Constraint("DistanceY", -1, 1, 0, 3, Q("16 mm")))
sketch33.addConstraint(Sketcher.Constraint("DistanceX", -1, 1, 0, 3, Q("113.5 mm")))
pocket32 = body.newObject("PartDesign::Pocket", "Pocket031")
pocket32.Profile = sketch33
pocket32.Length = 3
pocket32.Reversed = True

# Sketch on XY plane
sketch34 = body.newObject("Sketcher::SketchObject", "Sketch033")
sketch34.AttachmentSupport = (doc.getObject("XY_Plane"), [""])
sketch34.MapMode = "FlatFace"
sketch34.AttachmentOffset = App.Placement(Vector(0, 0, 4.873), App.Rotation())
sketch34.addGeometry(Part.Circle(Vector(40.5, 38.5, 0), Vector(0, 0, 1), 2), False)
sketch34.addConstraint(Sketcher.Constraint("Diameter", 0, Q("4 mm")))
sketch34.addConstraint(Sketcher.Constraint("DistanceX", -1, 1, 0, 3, Q("40.5 mm")))
sketch34.addConstraint(Sketcher.Constraint("DistanceY", -1, 1, 0, 3, Q("38.5 mm")))
pocket33 = body.newObject("PartDesign::Pocket", "Pocket032")
pocket33.Profile = sketch34
pocket33.Length = 3
pocket33.Reversed = True

# Sketch on XY plane
sketch35 = body.newObject("Sketcher::SketchObject", "Sketch034")
sketch35.AttachmentSupport = (doc.getObject("XY_Plane"), [""])
sketch35.MapMode = "FlatFace"
add_polygon(sketch35, [(75.75, 5), (75.75, 72), (78.25, 72), (78.25, 5)])  # lines 0-3
sketch35.addConstraint(Sketcher.Constraint("Vertical", 0))
sketch35.addConstraint(Sketcher.Constraint("Horizontal", 1))
sketch35.addConstraint(Sketcher.Constraint("Vertical", 2))
sketch35.addConstraint(Sketcher.Constraint("Horizontal", 3))
sketch35.addConstraint(Sketcher.Constraint("DistanceY", 0, 1, 0, 2, Q("67 mm")))
sketch35.addConstraint(Sketcher.Constraint("DistanceX", 1, 1, 1, 2, Q("2.5 mm")))
sketch35.addConstraint(Sketcher.Constraint("DistanceY", -1, 1, 0, 2, Q("72 mm")))
sketch35.addConstraint(Sketcher.Constraint("DistanceX", -1, 1, 0, 2, Q("75.75 mm")))
pad2 = body.newObject("PartDesign::Pad", "Pad001")
pad2.Profile = sketch35
pad2.Length = 4.873

# Sketch on XY plane
sketch36 = body.newObject("Sketcher::SketchObject", "Sketch035")
sketch36.AttachmentSupport = (doc.getObject("XY_Plane"), [""])
sketch36.MapMode = "FlatFace"
add_polygon(sketch36, [(75.75, 35.15), (75.75, 41.85), (78.25, 41.85), (78.25, 35.15)])  # lines 0-3
sketch36.addConstraint(Sketcher.Constraint("Vertical", 0))
sketch36.addConstraint(Sketcher.Constraint("Horizontal", 1))
sketch36.addConstraint(Sketcher.Constraint("Vertical", 2))
sketch36.addConstraint(Sketcher.Constraint("Horizontal", 3))
sketch36.addConstraint(Sketcher.Constraint("DistanceX", 1, 1, 1, 2, Q("2.5 mm")))
sketch36.addConstraint(Sketcher.Constraint("DistanceY", 0, 1, 0, 2, Q("6.7 mm")))
sketch36.addConstraint(Sketcher.Constraint("DistanceX", -1, 1, 0, 2, Q("75.75 mm")))
sketch36.addConstraint(Sketcher.Constraint("DistanceY", -1, 1, 0, 2, Q("41.85 mm")))
pocket34 = body.newObject("PartDesign::Pocket", "Pocket033")
pocket34.Profile = sketch36
pocket34.Length = 0.723
pocket34.Reversed = True

doc.recompute()
